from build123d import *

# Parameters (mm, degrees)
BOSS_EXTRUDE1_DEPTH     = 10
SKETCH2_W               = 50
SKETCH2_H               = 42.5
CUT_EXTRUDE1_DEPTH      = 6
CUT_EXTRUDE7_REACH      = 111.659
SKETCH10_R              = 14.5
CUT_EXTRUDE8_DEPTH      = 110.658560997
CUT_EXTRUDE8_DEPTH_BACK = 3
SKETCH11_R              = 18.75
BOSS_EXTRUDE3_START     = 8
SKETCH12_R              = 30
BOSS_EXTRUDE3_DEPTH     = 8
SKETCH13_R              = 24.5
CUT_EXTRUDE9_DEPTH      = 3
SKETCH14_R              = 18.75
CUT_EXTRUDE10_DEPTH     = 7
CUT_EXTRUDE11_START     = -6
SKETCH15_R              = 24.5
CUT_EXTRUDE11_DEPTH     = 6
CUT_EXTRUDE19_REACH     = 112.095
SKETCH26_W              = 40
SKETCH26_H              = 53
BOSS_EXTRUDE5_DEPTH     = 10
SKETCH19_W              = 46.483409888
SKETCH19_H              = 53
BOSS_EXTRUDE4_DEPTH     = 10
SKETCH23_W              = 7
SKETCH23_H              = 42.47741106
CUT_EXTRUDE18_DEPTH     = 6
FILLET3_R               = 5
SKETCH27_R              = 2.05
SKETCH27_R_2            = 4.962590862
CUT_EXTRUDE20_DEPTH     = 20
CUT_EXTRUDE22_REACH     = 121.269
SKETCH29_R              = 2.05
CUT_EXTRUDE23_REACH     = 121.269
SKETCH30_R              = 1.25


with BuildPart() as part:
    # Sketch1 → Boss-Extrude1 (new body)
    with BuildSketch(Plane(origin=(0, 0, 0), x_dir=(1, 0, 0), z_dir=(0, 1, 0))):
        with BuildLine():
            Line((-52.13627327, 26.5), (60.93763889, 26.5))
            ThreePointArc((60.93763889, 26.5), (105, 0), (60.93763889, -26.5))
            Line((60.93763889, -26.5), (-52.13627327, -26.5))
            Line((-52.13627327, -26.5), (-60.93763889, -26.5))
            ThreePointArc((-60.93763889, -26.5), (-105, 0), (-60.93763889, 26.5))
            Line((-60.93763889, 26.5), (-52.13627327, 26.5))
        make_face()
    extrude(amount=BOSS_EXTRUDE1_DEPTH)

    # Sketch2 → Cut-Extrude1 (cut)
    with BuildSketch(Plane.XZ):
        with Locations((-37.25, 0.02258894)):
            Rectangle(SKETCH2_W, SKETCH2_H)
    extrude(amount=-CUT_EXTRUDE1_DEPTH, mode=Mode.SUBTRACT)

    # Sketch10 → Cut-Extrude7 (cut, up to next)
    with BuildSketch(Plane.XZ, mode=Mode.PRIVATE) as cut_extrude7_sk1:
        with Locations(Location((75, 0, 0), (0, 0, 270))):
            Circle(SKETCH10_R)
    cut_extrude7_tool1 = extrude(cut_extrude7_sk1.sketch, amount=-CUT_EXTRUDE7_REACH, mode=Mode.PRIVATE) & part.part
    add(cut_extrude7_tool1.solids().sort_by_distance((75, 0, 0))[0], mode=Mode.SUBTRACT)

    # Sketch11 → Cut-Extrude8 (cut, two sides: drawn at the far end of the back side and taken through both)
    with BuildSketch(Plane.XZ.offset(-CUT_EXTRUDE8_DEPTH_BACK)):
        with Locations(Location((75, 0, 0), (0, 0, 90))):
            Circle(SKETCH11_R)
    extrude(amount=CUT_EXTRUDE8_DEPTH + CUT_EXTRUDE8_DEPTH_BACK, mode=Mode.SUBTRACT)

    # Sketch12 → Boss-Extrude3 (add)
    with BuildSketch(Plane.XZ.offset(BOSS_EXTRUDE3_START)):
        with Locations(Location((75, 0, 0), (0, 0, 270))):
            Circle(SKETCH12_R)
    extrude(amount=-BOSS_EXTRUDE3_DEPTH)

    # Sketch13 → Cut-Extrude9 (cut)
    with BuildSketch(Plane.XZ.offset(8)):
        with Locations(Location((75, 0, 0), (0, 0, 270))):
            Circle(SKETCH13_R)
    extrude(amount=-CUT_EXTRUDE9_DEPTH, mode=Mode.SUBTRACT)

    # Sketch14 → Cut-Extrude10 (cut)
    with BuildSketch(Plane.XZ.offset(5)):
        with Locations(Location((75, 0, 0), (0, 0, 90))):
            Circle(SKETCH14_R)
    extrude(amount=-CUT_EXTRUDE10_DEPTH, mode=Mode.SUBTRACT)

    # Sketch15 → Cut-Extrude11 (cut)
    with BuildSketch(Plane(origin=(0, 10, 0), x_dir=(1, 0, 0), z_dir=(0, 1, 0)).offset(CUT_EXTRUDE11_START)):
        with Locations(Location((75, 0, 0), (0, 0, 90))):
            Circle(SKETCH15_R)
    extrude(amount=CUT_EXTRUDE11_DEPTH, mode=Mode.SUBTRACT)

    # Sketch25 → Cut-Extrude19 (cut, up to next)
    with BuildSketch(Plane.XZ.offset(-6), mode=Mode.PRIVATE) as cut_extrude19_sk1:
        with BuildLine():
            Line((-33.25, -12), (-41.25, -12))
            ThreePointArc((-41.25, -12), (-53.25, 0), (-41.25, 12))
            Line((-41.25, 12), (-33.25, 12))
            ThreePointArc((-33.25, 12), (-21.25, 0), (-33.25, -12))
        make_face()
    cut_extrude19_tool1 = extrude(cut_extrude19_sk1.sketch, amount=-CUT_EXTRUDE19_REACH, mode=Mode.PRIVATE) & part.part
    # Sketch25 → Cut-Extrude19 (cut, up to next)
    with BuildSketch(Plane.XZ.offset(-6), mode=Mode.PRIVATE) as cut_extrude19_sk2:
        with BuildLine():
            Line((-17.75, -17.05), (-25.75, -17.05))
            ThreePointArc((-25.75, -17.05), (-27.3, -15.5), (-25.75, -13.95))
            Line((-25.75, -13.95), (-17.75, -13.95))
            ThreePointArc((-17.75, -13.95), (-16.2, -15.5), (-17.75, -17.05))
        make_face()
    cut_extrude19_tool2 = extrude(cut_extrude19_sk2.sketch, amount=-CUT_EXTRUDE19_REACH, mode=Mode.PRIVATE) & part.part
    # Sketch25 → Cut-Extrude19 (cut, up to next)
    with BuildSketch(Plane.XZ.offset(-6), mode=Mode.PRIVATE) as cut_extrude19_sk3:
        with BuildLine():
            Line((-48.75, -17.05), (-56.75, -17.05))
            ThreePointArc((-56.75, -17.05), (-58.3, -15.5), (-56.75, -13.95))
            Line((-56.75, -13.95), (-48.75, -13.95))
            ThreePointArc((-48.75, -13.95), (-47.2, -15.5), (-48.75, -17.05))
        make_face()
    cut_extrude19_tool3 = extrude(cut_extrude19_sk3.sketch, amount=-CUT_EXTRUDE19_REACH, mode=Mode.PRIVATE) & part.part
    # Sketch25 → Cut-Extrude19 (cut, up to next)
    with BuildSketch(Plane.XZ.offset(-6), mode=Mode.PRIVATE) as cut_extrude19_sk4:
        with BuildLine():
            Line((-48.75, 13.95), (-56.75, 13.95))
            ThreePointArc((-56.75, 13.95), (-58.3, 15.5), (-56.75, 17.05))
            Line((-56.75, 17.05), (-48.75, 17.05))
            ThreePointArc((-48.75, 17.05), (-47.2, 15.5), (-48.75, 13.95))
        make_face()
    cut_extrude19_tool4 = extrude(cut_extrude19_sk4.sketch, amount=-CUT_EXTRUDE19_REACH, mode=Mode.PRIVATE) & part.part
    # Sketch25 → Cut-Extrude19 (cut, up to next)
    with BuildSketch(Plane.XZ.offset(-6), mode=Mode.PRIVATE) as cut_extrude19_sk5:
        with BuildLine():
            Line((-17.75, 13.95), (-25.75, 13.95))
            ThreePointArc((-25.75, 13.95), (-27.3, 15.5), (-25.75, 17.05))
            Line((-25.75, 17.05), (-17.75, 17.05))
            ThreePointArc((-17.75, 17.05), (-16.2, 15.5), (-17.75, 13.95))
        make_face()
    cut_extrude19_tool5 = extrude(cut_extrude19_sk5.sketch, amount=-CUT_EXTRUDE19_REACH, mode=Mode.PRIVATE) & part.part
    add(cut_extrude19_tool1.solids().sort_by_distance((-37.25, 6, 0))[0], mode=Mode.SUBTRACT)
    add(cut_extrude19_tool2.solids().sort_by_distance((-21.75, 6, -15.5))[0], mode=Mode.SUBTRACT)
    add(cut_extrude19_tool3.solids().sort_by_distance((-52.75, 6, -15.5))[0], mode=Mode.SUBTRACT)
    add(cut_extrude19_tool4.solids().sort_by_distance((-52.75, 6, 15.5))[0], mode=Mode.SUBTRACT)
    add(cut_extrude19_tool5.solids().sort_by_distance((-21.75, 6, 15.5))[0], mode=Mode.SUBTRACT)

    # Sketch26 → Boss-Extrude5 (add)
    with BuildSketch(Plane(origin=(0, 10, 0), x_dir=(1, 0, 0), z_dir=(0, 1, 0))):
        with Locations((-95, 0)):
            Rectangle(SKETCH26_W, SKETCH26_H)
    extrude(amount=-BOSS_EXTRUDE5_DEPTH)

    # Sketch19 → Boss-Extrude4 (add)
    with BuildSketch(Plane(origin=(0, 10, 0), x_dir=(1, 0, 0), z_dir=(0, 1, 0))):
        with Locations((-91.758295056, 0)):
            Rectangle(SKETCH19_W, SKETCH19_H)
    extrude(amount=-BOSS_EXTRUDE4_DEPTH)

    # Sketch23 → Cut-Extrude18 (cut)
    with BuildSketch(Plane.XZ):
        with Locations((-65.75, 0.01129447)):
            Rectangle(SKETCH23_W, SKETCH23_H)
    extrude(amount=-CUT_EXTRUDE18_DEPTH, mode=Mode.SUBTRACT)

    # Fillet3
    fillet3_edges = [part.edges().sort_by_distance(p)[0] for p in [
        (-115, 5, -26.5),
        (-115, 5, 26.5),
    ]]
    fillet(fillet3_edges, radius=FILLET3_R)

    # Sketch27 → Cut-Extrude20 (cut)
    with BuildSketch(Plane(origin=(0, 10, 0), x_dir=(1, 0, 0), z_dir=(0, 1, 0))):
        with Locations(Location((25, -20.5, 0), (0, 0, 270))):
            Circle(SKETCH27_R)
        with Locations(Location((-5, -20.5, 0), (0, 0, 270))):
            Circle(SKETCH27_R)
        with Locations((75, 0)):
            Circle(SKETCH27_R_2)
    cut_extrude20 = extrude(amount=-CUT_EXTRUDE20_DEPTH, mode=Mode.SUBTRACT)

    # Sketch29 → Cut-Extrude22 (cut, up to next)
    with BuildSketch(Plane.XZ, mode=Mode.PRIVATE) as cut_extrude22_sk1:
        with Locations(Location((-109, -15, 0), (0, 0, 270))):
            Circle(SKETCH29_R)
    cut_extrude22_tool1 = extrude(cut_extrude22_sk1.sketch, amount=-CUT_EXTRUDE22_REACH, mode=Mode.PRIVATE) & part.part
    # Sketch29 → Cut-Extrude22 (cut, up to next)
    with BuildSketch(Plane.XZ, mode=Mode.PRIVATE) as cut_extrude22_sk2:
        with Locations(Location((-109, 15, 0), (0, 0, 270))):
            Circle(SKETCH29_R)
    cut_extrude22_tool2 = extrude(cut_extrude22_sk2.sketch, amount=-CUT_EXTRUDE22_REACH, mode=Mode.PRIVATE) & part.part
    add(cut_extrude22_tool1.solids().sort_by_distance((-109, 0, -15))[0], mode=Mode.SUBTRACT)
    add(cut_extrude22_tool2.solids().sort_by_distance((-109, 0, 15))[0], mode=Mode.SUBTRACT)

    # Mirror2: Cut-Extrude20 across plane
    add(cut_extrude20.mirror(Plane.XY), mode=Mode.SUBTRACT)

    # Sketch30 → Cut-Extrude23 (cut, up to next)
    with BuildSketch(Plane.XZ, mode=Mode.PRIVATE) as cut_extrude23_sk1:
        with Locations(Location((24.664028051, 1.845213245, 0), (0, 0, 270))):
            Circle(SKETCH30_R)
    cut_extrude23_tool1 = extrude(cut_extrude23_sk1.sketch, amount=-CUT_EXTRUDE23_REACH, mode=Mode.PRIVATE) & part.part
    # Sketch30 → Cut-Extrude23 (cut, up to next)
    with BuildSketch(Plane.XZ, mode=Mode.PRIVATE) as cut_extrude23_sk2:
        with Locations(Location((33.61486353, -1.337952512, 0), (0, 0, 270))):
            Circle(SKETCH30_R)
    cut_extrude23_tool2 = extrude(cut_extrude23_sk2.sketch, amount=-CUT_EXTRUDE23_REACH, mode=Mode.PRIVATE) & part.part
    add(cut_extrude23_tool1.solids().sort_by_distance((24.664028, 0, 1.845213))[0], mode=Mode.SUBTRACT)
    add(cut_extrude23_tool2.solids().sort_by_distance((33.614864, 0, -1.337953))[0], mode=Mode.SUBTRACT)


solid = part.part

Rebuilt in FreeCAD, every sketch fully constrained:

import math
import FreeCAD as App
import Part
import Sketcher

V = App.Vector


def edges_at(feature, points):
    """Names of the edges that pass closest to the given points."""
    edges = feature.Shape.Edges
    near = lambda p: min(range(len(edges)), key=lambda i: edges[i].distToShape(Part.Vertex(*p))[0])
    return sorted({f"Edge{near(p) + 1}" for p in points})


def add_polygon(sketch, points):
    """Adds a closed chain of lines whose ends are joined by coincident constraints."""
    first, n = sketch.GeometryCount, len(points)
    for a, b in zip(points, points[1:] + points[:1]):
        sketch.addGeometry(Part.LineSegment(App.Vector(*a, 0), App.Vector(*b, 0)), False)
    for i in range(n):
        sketch.addConstraint(Sketcher.Constraint("Coincident", first + i, 2, first + (i + 1) % n, 1))

doc = App.newDocument("Part")
body = doc.addObject("PartDesign::Body", "Body")

# Sketch on XZ plane
sketch1 = body.newObject("Sketcher::SketchObject", "Sketch")
sketch1.AttachmentSupport = (doc.getObject("XZ_Plane"), [""])
sketch1.MapMode = "FlatFace"
sketch1.addGeometry(Part.ArcOfCircle(Part.Circle(V(75, 0, 0), V(0, 0, 1), 30), math.radians(-118), math.radians(118)), False)
sketch1.addGeometry(Part.LineSegment(V(61, -26, 0), V(-61, -26, 0)), False)
sketch1.addGeometry(Part.ArcOfCircle(Part.Circle(V(-75, 0, 0), V(0, 0, 1), 30), math.radians(62), math.radians(298)), False)
sketch1.addGeometry(Part.LineSegment(V(-61, 26, 0), V(61, 26, 0)), False)
sketch1.addConstraint(Sketcher.Constraint("Coincident", 0, 1, 1, 1))
sketch1.addConstraint(Sketcher.Constraint("Coincident", 1, 2, 2, 2))
sketch1.addConstraint(Sketcher.Constraint("Coincident", 2, 1, 3, 1))
sketch1.addConstraint(Sketcher.Constraint("Coincident", 3, 2, 0, 2))
sketch1.addConstraint(Sketcher.Constraint("Horizontal", 1))
sketch1.addConstraint(Sketcher.Constraint("Horizontal", 3))
sketch1.addConstraint(Sketcher.Constraint("Equal", 0, 2))
sketch1.addConstraint(Sketcher.Constraint("Symmetric", 0, 3, 2, 3, -1, 1))
sketch1.addConstraint(Sketcher.Constraint("Symmetric", 1, 2, 2, 1, -1))
sketch1.addConstraint(Sketcher.Constraint("Radius", 0, 30.0))
sketch1.addConstraint(Sketcher.Constraint("DistanceX", -1, 1, 0, 3, 75.0))
sketch1.addConstraint(Sketcher.Constraint("DistanceY", 1, 2, 2, 1, 53.0))
pad1 = body.newObject("PartDesign::Pad", "Pad")
pad1.Profile = sketch1
pad1.Length = 10
pad1.Reversed = True

# Sketch on XZ plane
sketch2 = body.newObject("Sketcher::SketchObject", "Sketch001")
sketch2.AttachmentSupport = (doc.getObject("XZ_Plane"), [""])
sketch2.MapMode = "FlatFace"
add_polygon(sketch2, [(-62, 21), (-62, -21), (-12, -21), (-12, 21)])  # lines 0-3
sketch2.addConstraint(Sketcher.Constraint("Vertical", 0))
sketch2.addConstraint(Sketcher.Constraint("Horizontal", 1))
sketch2.addConstraint(Sketcher.Constraint("Vertical", 2))
sketch2.addConstraint(Sketcher.Constraint("Horizontal", 3))
sketch2.addConstraint(Sketcher.Constraint("DistanceX", 1, 1, 1, 2, 50.0))
sketch2.addConstraint(Sketcher.Constraint("DistanceY", 0, 2, 0, 1, 42.5))
sketch2.addConstraint(Sketcher.Constraint("DistanceX", 0, 2, -1, 1, 62.25))
sketch2.addConstraint(Sketcher.Constraint("DistanceY", 0, 2, -1, 1, 21.227411))
pocket1 = body.newObject("PartDesign::Pocket", "Pocket")
pocket1.Profile = sketch2
pocket1.Length = 6

# Sketch on XZ plane
sketch3 = body.newObject("Sketcher::SketchObject", "Sketch002")
sketch3.AttachmentSupport = (doc.getObject("XZ_Plane"), [""])
sketch3.MapMode = "FlatFace"
sketch3.addGeometry(Part.Circle(V(75, 0, 0), V(0, 0, 1), 14), False)
sketch3.addConstraint(Sketcher.Constraint("PointOnObject", 0, 3, -1))
sketch3.addConstraint(Sketcher.Constraint("Diameter", 0, 29.0))
sketch3.addConstraint(Sketcher.Constraint("DistanceX", -1, 1, 0, 3, 75.0))
pocket2 = body.newObject("PartDesign::Pocket", "Pocket001")
pocket2.Profile = sketch3
pocket2.Type = "UpToFirst"

# Sketch on XZ plane
sketch4 = body.newObject("Sketcher::SketchObject", "Sketch003")
sketch4.AttachmentSupport = (doc.getObject("XZ_Plane"), [""])
sketch4.MapMode = "FlatFace"
sketch4.addGeometry(Part.Circle(V(75, 0, 0), V(0, 0, 1), 19), False)
sketch4.addConstraint(Sketcher.Constraint("PointOnObject", 0, 3, -1))
sketch4.addConstraint(Sketcher.Constraint("Diameter", 0, 37.5))
sketch4.addConstraint(Sketcher.Constraint("DistanceX", -1, 1, 0, 3, 75.0))
pocket3 = body.newObject("PartDesign::Pocket", "Pocket002")
pocket3.Profile = sketch4
pocket3.Type = "TwoLengths"
pocket3.Length = 110.658561
pocket3.Length2 = 3
pocket3.Reversed = True

# Sketch on XZ plane
sketch5 = body.newObject("Sketcher::SketchObject", "Sketch004")
sketch5.AttachmentSupport = (doc.getObject("XZ_Plane"), [""])
sketch5.MapMode = "FlatFace"
sketch5.AttachmentOffset = App.Placement(V(0, 0, 8), App.Rotation())
sketch5.addGeometry(Part.Circle(V(75, 0, 0), V(0, 0, 1), 30), False)
sketch5.addConstraint(Sketcher.Constraint("PointOnObject", 0, 3, -1))
sketch5.addConstraint(Sketcher.Constraint("Diameter", 0, 60.0))
sketch5.addConstraint(Sketcher.Constraint("DistanceX", -1, 1, 0, 3, 75.0))
pad2 = body.newObject("PartDesign::Pad", "Pad001")
pad2.Profile = sketch5
pad2.Length = 8
pad2.Reversed = True

# Sketch on XZ plane
sketch6 = body.newObject("Sketcher::SketchObject", "Sketch005")
sketch6.AttachmentSupport = (doc.getObject("XZ_Plane"), [""])
sketch6.MapMode = "FlatFace"
sketch6.AttachmentOffset = App.Placement(V(0, 0, 8), App.Rotation())
sketch6.addGeometry(Part.Circle(V(75, 0, 0), V(0, 0, 1), 24), False)
sketch6.addConstraint(Sketcher.Constraint("PointOnObject", 0, 3, -1))
sketch6.addConstraint(Sketcher.Constraint("Diameter", 0, 49.0))
sketch6.addConstraint(Sketcher.Constraint("DistanceX", -1, 1, 0, 3, 75.0))
pocket4 = body.newObject("PartDesign::Pocket", "Pocket003")
pocket4.Profile = sketch6
pocket4.Length = 3

# Sketch on XZ plane
sketch7 = body.newObject("Sketcher::SketchObject", "Sketch006")
sketch7.AttachmentSupport = (doc.getObject("XZ_Plane"), [""])
sketch7.MapMode = "FlatFace"
sketch7.AttachmentOffset = App.Placement(V(0, 0, 5), App.Rotation())
sketch7.addGeometry(Part.Circle(V(75, 0, 0), V(0, 0, 1), 19), False)
sketch7.addConstraint(Sketcher.Constraint("PointOnObject", 0, 3, -1))
sketch7.addConstraint(Sketcher.Constraint("Diameter", 0, 37.5))
sketch7.addConstraint(Sketcher.Constraint("DistanceX", -1, 1, 0, 3, 75.0))
pocket5 = body.newObject("PartDesign::Pocket", "Pocket004")
pocket5.Profile = sketch7
pocket5.Length = 7

# Sketch on XZ plane
sketch8 = body.newObject("Sketcher::SketchObject", "Sketch007")
sketch8.AttachmentSupport = (doc.getObject("XZ_Plane"), [""])
sketch8.MapMode = "FlatFace"
sketch8.AttachmentOffset = App.Placement(V(0, 0, -4), App.Rotation())
sketch8.addGeometry(Part.Circle(V(75, 0, 0), V(0, 0, 1), 24), False)
sketch8.addConstraint(Sketcher.Constraint("PointOnObject", 0, 3, -1))
sketch8.addConstraint(Sketcher.Constraint("Diameter", 0, 49.0))
sketch8.addConstraint(Sketcher.Constraint("DistanceX", -1, 1, 0, 3, 75.0))
pocket6 = body.newObject("PartDesign::Pocket", "Pocket005")
pocket6.Profile = sketch8
pocket6.Length = 6

# Sketch on XZ plane
sketch9 = body.newObject("Sketcher::SketchObject", "Sketch008")
sketch9.AttachmentSupport = (doc.getObject("XZ_Plane"), [""])
sketch9.MapMode = "FlatFace"
sketch9.AttachmentOffset = App.Placement(V(0, 0, -6), App.Rotation())
sketch9.addGeometry(Part.LineSegment(V(-41, -12, 0), V(-33, -12, 0)), False)
sketch9.addGeometry(Part.ArcOfCircle(Part.Circle(V(-33, 0, 0), V(0, 0, 1), 12), math.radians(-90), math.radians(90)), False)
sketch9.addGeometry(Part.LineSegment(V(-33, 12, 0), V(-41, 12, 0)), False)
sketch9.addGeometry(Part.ArcOfCircle(Part.Circle(V(-41, 0, 0), V(0, 0, 1), 12), math.radians(90), math.radians(270)), False)
sketch9.addConstraint(Sketcher.Constraint("Tangent", 0, 2, 1, 1))
sketch9.addConstraint(Sketcher.Constraint("Tangent", 1, 2, 2, 1))
sketch9.addConstraint(Sketcher.Constraint("Tangent", 2, 2, 3, 1))
sketch9.addConstraint(Sketcher.Constraint("Tangent", 3, 2, 0, 1))
sketch9.addConstraint(Sketcher.Constraint("Horizontal", 0))
sketch9.addConstraint(Sketcher.Constraint("Horizontal", 2))
sketch9.addConstraint(Sketcher.Constraint("PointOnObject", 1, 3, -1))
sketch9.addConstraint(Sketcher.Constraint("Radius", 1, 12.0))
sketch9.addConstraint(Sketcher.Constraint("DistanceX", 0, 1, 0, 2, 8.0))
sketch9.addConstraint(Sketcher.Constraint("DistanceX", 1, 3, -1, 1, 33.25))
pocket7 = body.newObject("PartDesign::Pocket", "Pocket006")
pocket7.Profile = sketch9
pocket7.Type = "UpToFirst"

# Sketch on XZ plane
sketch10 = body.newObject("Sketcher::SketchObject", "Sketch009")
sketch10.AttachmentSupport = (doc.getObject("XZ_Plane"), [""])
sketch10.MapMode = "FlatFace"
sketch10.AttachmentOffset = App.Placement(V(0, 0, -6), App.Rotation())
sketch10.addGeometry(Part.LineSegment(V(-25.8, -17.1, 0), V(-17.8, -17.1, 0)), False)
sketch10.addGeometry(Part.ArcOfCircle(Part.Circle(V(-17.8, -15.5, 0), V(0, 0, 1), 1.6), math.radians(-90), math.radians(90)), False)
sketch10.addGeometry(Part.LineSegment(V(-17.8, -13.9, 0), V(-25.8, -13.9, 0)), False)
sketch10.addGeometry(Part.ArcOfCircle(Part.Circle(V(-25.8, -15.5, 0), V(0, 0, 1), 1.6), math.radians(90), math.radians(270)), False)
sketch10.addConstraint(Sketcher.Constraint("Tangent", 0, 2, 1, 1))
sketch10.addConstraint(Sketcher.Constraint("Tangent", 1, 2, 2, 1))
sketch10.addConstraint(Sketcher.Constraint("Tangent", 2, 2, 3, 1))
sketch10.addConstraint(Sketcher.Constraint("Tangent", 3, 2, 0, 1))
sketch10.addConstraint(Sketcher.Constraint("Horizontal", 0))
sketch10.addConstraint(Sketcher.Constraint("Horizontal", 2))
sketch10.addConstraint(Sketcher.Constraint("DistanceX", 0, 1, 0, 2, 8.0))
sketch10.addConstraint(Sketcher.Constraint("Radius", 1, 1.55))
sketch10.addConstraint(Sketcher.Constraint("DistanceY", 1, 3, -1, 1, 15.5))
sketch10.addConstraint(Sketcher.Constraint("DistanceX", 1, 3, -1, 1, 17.75))
pocket8 = body.newObject("PartDesign::Pocket", "Pocket007")
pocket8.Profile = sketch10
pocket8.Type = "UpToFirst"

# Sketch on XZ plane
sketch11 = body.newObject("Sketcher::SketchObject", "Sketch010")
sketch11.AttachmentSupport = (doc.getObject("XZ_Plane"), [""])
sketch11.MapMode = "FlatFace"
sketch11.AttachmentOffset = App.Placement(V(0, 0, -6), App.Rotation())
sketch11.addGeometry(Part.LineSegment(V(-56.8, -17.1, 0), V(-48.8, -17.1, 0)), False)
sketch11.addGeometry(Part.ArcOfCircle(Part.Circle(V(-48.8, -15.5, 0), V(0, 0, 1), 1.6), math.radians(-90), math.radians(90)), False)
sketch11.addGeometry(Part.LineSegment(V(-48.8, -13.9, 0), V(-56.8, -13.9, 0)), False)
sketch11.addGeometry(Part.ArcOfCircle(Part.Circle(V(-56.8, -15.5, 0), V(0, 0, 1), 1.6), math.radians(90), math.radians(270)), False)
sketch11.addConstraint(Sketcher.Constraint("Tangent", 0, 2, 1, 1))
sketch11.addConstraint(Sketcher.Constraint("Tangent", 1, 2, 2, 1))
sketch11.addConstraint(Sketcher.Constraint("Tangent", 2, 2, 3, 1))
sketch11.addConstraint(Sketcher.Constraint("Tangent", 3, 2, 0, 1))
sketch11.addConstraint(Sketcher.Constraint("Horizontal", 0))
sketch11.addConstraint(Sketcher.Constraint("Horizontal", 2))
sketch11.addConstraint(Sketcher.Constraint("DistanceX", 0, 1, 0, 2, 8.0))
sketch11.addConstraint(Sketcher.Constraint("Radius", 1, 1.55))
sketch11.addConstraint(Sketcher.Constraint("DistanceY", 1, 3, -1, 1, 15.5))
sketch11.addConstraint(Sketcher.Constraint("DistanceX", 1, 3, -1, 1, 48.75))
pocket9 = body.newObject("PartDesign::Pocket", "Pocket008")
pocket9.Profile = sketch11
pocket9.Type = "UpToFirst"

# Sketch on XZ plane
sketch12 = body.newObject("Sketcher::SketchObject", "Sketch011")
sketch12.AttachmentSupport = (doc.getObject("XZ_Plane"), [""])
sketch12.MapMode = "FlatFace"
sketch12.AttachmentOffset = App.Placement(V(0, 0, -6), App.Rotation())
sketch12.addGeometry(Part.LineSegment(V(-56.8, 13.9, 0), V(-48.8, 13.9, 0)), False)
sketch12.addGeometry(Part.ArcOfCircle(Part.Circle(V(-48.8, 15.5, 0), V(0, 0, 1), 1.6), math.radians(-90), math.radians(90)), False)
sketch12.addGeometry(Part.LineSegment(V(-48.8, 17.1, 0), V(-56.8, 17.1, 0)), False)
sketch12.addGeometry(Part.ArcOfCircle(Part.Circle(V(-56.8, 15.5, 0), V(0, 0, 1), 1.6), math.radians(90), math.radians(270)), False)
sketch12.addConstraint(Sketcher.Constraint("Tangent", 0, 2, 1, 1))
sketch12.addConstraint(Sketcher.Constraint("Tangent", 1, 2, 2, 1))
sketch12.addConstraint(Sketcher.Constraint("Tangent", 2, 2, 3, 1))
sketch12.addConstraint(Sketcher.Constraint("Tangent", 3, 2, 0, 1))
sketch12.addConstraint(Sketcher.Constraint("Horizontal", 0))
sketch12.addConstraint(Sketcher.Constraint("Horizontal", 2))
sketch12.addConstraint(Sketcher.Constraint("DistanceX", 0, 1, 0, 2, 8.0))
sketch12.addConstraint(Sketcher.Constraint("Radius", 1, 1.55))
sketch12.addConstraint(Sketcher.Constraint("DistanceY", -1, 1, 1, 3, 15.5))
sketch12.addConstraint(Sketcher.Constraint("DistanceX", 1, 3, -1, 1, 48.75))
pocket10 = body.newObject("PartDesign::Pocket", "Pocket009")
pocket10.Profile = sketch12
pocket10.Type = "UpToFirst"

# Sketch on XZ plane
sketch13 = body.newObject("Sketcher::SketchObject", "Sketch012")
sketch13.AttachmentSupport = (doc.getObject("XZ_Plane"), [""])
sketch13.MapMode = "FlatFace"
sketch13.AttachmentOffset = App.Placement(V(0, 0, -6), App.Rotation())
sketch13.addGeometry(Part.LineSegment(V(-25.8, 13.9, 0), V(-17.8, 13.9, 0)), False)
sketch13.addGeometry(Part.ArcOfCircle(Part.Circle(V(-17.8, 15.5, 0), V(0, 0, 1), 1.6), math.radians(-90), math.radians(90)), False)
sketch13.addGeometry(Part.LineSegment(V(-17.8, 17.1, 0), V(-25.8, 17.1, 0)), False)
sketch13.addGeometry(Part.ArcOfCircle(Part.Circle(V(-25.8, 15.5, 0), V(0, 0, 1), 1.6), math.radians(90), math.radians(270)), False)
sketch13.addConstraint(Sketcher.Constraint("Tangent", 0, 2, 1, 1))
sketch13.addConstraint(Sketcher.Constraint("Tangent", 1, 2, 2, 1))
sketch13.addConstraint(Sketcher.Constraint("Tangent", 2, 2, 3, 1))
sketch13.addConstraint(Sketcher.Constraint("Tangent", 3, 2, 0, 1))
sketch13.addConstraint(Sketcher.Constraint("Horizontal", 0))
sketch13.addConstraint(Sketcher.Constraint("Horizontal", 2))
sketch13.addConstraint(Sketcher.Constraint("DistanceX", 0, 1, 0, 2, 8.0))
sketch13.addConstraint(Sketcher.Constraint("Radius", 1, 1.55))
sketch13.addConstraint(Sketcher.Constraint("DistanceY", -1, 1, 1, 3, 15.5))
sketch13.addConstraint(Sketcher.Constraint("DistanceX", 1, 3, -1, 1, 17.75))
pocket11 = body.newObject("PartDesign::Pocket", "Pocket010")
pocket11.Profile = sketch13
pocket11.Type = "UpToFirst"

# Sketch on XZ plane
sketch14 = body.newObject("Sketcher::SketchObject", "Sketch013")
sketch14.AttachmentSupport = (doc.getObject("XZ_Plane"), [""])
sketch14.MapMode = "FlatFace"
sketch14.AttachmentOffset = App.Placement(V(0, 0, -10), App.Rotation())
add_polygon(sketch14, [(-115, -26), (-115, 26), (-75, 26), (-75, -26)])  # lines 0-3
sketch14.addConstraint(Sketcher.Constraint("Vertical", 0))
sketch14.addConstraint(Sketcher.Constraint("Horizontal", 1))
sketch14.addConstraint(Sketcher.Constraint("Vertical", 2))
sketch14.addConstraint(Sketcher.Constraint("Horizontal", 3))
sketch14.addConstraint(Sketcher.Constraint("DistanceX", 1, 1, 1, 2, 40.0))
sketch14.addConstraint(Sketcher.Constraint("DistanceY", 0, 1, 0, 2, 53.0))
sketch14.addConstraint(Sketcher.Constraint("DistanceX", 0, 2, -1, 1, 115.0))
sketch14.addConstraint(Sketcher.Constraint("DistanceY", -1, 1, 0, 2, 26.5))
pad3 = body.newObject("PartDesign::Pad", "Pad002")
pad3.Profile = sketch14
pad3.Length = 10

# Sketch on XZ plane
sketch15 = body.newObject("Sketcher::SketchObject", "Sketch014")
sketch15.AttachmentSupport = (doc.getObject("XZ_Plane"), [""])
sketch15.MapMode = "FlatFace"
sketch15.AttachmentOffset = App.Placement(V(0, 0, -10), App.Rotation())
add_polygon(sketch15, [(-115, -26), (-115, 26), (-69, 26), (-69, -26)])  # lines 0-3
sketch15.addConstraint(Sketcher.Constraint("Vertical", 0))
sketch15.addConstraint(Sketcher.Constraint("Horizontal", 1))
sketch15.addConstraint(Sketcher.Constraint("Vertical", 2))
sketch15.addConstraint(Sketcher.Constraint("Horizontal", 3))
sketch15.addConstraint(Sketcher.Constraint("DistanceY", 0, 1, 0, 2, 53.0))
sketch15.addConstraint(Sketcher.Constraint("DistanceX", 0, 2, -1, 1, 115.0))
sketch15.addConstraint(Sketcher.Constraint("DistanceY", -1, 1, 0, 2, 26.5))
sketch15.addConstraint(Sketcher.Constraint("DistanceX", 1, 1, 1, 2, 46.48341))
pad4 = body.newObject("PartDesign::Pad", "Pad003")
pad4.Profile = sketch15
pad4.Length = 10

# Sketch on XZ plane
sketch16 = body.newObject("Sketcher::SketchObject", "Sketch015")
sketch16.AttachmentSupport = (doc.getObject("XZ_Plane"), [""])
sketch16.MapMode = "FlatFace"
add_polygon(sketch16, [(-69, 21), (-69, -21), (-62, -21), (-62, 21)])  # lines 0-3
sketch16.addConstraint(Sketcher.Constraint("Vertical", 0))
sketch16.addConstraint(Sketcher.Constraint("Horizontal", 1))
sketch16.addConstraint(Sketcher.Constraint("Vertical", 2))
sketch16.addConstraint(Sketcher.Constraint("Horizontal", 3))
sketch16.addConstraint(Sketcher.Constraint("DistanceX", 1, 1, 1, 2, 7.0))
sketch16.addConstraint(Sketcher.Constraint("DistanceX", 0, 2, -1, 1, 69.25))
sketch16.addConstraint(Sketcher.Constraint("DistanceY", -1, 1, 2, 2, 21.25))
sketch16.addConstraint(Sketcher.Constraint("DistanceY", 0, 2, 0, 1, 42.477411))
pocket12 = body.newObject("PartDesign::Pocket", "Pocket011")
pocket12.Profile = sketch16
pocket12.Length = 6
doc.recompute()

fillet = body.newObject("PartDesign::Fillet", "Fillet")
fillet.Base = (pocket12, edges_at(pocket12, [(-115, 5, -26.5), (-115, 5, 26.5)]))
fillet.Radius = 5

# Sketch on XZ plane
sketch17 = body.newObject("Sketcher::SketchObject", "Sketch016")
sketch17.AttachmentSupport = (doc.getObject("XZ_Plane"), [""])
sketch17.MapMode = "FlatFace"
sketch17.AttachmentOffset = App.Placement(V(0, 0, -10), App.Rotation())
sketch17.addGeometry(Part.Circle(V(25, 20.5, 0), V(0, 0, 1), 2), False)
sketch17.addGeometry(Part.Circle(V(-5, 20.5, 0), V(0, 0, 1), 2), False)
sketch17.addGeometry(Part.Circle(V(75, 0, 0), V(0, 0, 1), 5), False)
sketch17.addConstraint(Sketcher.Constraint("Equal", 0, 1))
sketch17.addConstraint(Sketcher.Constraint("PointOnObject", 2, 3, -1))
sketch17.addConstraint(Sketcher.Constraint("Horizontal", 0, 3, 1, 3))
sketch17.addConstraint(Sketcher.Constraint("Diameter", 0, 4.1))
sketch17.addConstraint(Sketcher.Constraint("DistanceX", -1, 1, 0, 3, 25.0))
sketch17.addConstraint(Sketcher.Constraint("DistanceX", 1, 3, -1, 1, 5.0))
sketch17.addConstraint(Sketcher.Constraint("DistanceX", -1, 1, 2, 3, 75.0))
sketch17.addConstraint(Sketcher.Constraint("DistanceY", -1, 1, 0, 3, 20.5))
sketch17.addConstraint(Sketcher.Constraint("Diameter", 2, 9.925182))
pocket13 = body.newObject("PartDesign::Pocket", "Pocket012")
pocket13.Profile = sketch17
pocket13.Length = 20
pocket13.Reversed = True

# Sketch on XZ plane
sketch18 = body.newObject("Sketcher::SketchObject", "Sketch017")
sketch18.AttachmentSupport = (doc.getObject("XZ_Plane"), [""])
sketch18.MapMode = "FlatFace"
sketch18.addGeometry(Part.Circle(V(-109, -15, 0), V(0, 0, 1), 2), False)
sketch18.addConstraint(Sketcher.Constraint("Diameter", 0, 4.1))
sketch18.addConstraint(Sketcher.Constraint("DistanceX", 0, 3, -1, 1, 109.0))
sketch18.addConstraint(Sketcher.Constraint("DistanceY", 0, 3, -1, 1, 15.0))
pocket14 = body.newObject("PartDesign::Pocket", "Pocket013")
pocket14.Profile = sketch18
pocket14.Type = "UpToFirst"

# Sketch on XZ plane
sketch19 = body.newObject("Sketcher::SketchObject", "Sketch018")
sketch19.AttachmentSupport = (doc.getObject("XZ_Plane"), [""])
sketch19.MapMode = "FlatFace"
sketch19.addGeometry(Part.Circle(V(-109, 15, 0), V(0, 0, 1), 2), False)
sketch19.addConstraint(Sketcher.Constraint("Diameter", 0, 4.1))
sketch19.addConstraint(Sketcher.Constraint("DistanceX", 0, 3, -1, 1, 109.0))
sketch19.addConstraint(Sketcher.Constraint("DistanceY", -1, 1, 0, 3, 15.0))
pocket15 = body.newObject("PartDesign::Pocket", "Pocket014")
pocket15.Profile = sketch19
pocket15.Type = "UpToFirst"
doc.recompute()

mirrored = body.newObject("PartDesign::Mirrored", "Mirrored")
mirrored.Originals = [pocket13]
mirrored.MirrorPlane = (doc.getObject("XY_Plane"), [""])
body.Tip = mirrored

# Sketch on XZ plane
sketch20 = body.newObject("Sketcher::SketchObject", "Sketch019")
sketch20.AttachmentSupport = (doc.getObject("XZ_Plane"), [""])
sketch20.MapMode = "FlatFace"
sketch20.addGeometry(Part.Circle(V(24.7, 1.8, 0), V(0, 0, 1), 1.2), False)
sketch20.addConstraint(Sketcher.Constraint("Diameter", 0, 2.5))
sketch20.addConstraint(Sketcher.Constraint("DistanceX", -1, 1, 0, 3, 24.664028))
sketch20.addConstraint(Sketcher.Constraint("DistanceY", -1, 1, 0, 3, 1.845213))
pocket16 = body.newObject("PartDesign::Pocket", "Pocket015")
pocket16.Profile = sketch20
pocket16.Type = "UpToFirst"

# Sketch on XZ plane
sketch21 = body.newObject("Sketcher::SketchObject", "Sketch020")
sketch21.AttachmentSupport = (doc.getObject("XZ_Plane"), [""])
sketch21.MapMode = "FlatFace"
sketch21.addGeometry(Part.Circle(V(33.6, -1.3, 0), V(0, 0, 1), 1.2), False)
sketch21.addConstraint(Sketcher.Constraint("Diameter", 0, 2.5))
sketch21.addConstraint(Sketcher.Constraint("DistanceX", -1, 1, 0, 3, 33.614864))
sketch21.addConstraint(Sketcher.Constraint("DistanceY", 0, 3, -1, 1, 1.337953))
pocket17 = body.newObject("PartDesign::Pocket", "Pocket016")
pocket17.Profile = sketch21
pocket17.Type = "UpToFirst"

doc.recompute()
